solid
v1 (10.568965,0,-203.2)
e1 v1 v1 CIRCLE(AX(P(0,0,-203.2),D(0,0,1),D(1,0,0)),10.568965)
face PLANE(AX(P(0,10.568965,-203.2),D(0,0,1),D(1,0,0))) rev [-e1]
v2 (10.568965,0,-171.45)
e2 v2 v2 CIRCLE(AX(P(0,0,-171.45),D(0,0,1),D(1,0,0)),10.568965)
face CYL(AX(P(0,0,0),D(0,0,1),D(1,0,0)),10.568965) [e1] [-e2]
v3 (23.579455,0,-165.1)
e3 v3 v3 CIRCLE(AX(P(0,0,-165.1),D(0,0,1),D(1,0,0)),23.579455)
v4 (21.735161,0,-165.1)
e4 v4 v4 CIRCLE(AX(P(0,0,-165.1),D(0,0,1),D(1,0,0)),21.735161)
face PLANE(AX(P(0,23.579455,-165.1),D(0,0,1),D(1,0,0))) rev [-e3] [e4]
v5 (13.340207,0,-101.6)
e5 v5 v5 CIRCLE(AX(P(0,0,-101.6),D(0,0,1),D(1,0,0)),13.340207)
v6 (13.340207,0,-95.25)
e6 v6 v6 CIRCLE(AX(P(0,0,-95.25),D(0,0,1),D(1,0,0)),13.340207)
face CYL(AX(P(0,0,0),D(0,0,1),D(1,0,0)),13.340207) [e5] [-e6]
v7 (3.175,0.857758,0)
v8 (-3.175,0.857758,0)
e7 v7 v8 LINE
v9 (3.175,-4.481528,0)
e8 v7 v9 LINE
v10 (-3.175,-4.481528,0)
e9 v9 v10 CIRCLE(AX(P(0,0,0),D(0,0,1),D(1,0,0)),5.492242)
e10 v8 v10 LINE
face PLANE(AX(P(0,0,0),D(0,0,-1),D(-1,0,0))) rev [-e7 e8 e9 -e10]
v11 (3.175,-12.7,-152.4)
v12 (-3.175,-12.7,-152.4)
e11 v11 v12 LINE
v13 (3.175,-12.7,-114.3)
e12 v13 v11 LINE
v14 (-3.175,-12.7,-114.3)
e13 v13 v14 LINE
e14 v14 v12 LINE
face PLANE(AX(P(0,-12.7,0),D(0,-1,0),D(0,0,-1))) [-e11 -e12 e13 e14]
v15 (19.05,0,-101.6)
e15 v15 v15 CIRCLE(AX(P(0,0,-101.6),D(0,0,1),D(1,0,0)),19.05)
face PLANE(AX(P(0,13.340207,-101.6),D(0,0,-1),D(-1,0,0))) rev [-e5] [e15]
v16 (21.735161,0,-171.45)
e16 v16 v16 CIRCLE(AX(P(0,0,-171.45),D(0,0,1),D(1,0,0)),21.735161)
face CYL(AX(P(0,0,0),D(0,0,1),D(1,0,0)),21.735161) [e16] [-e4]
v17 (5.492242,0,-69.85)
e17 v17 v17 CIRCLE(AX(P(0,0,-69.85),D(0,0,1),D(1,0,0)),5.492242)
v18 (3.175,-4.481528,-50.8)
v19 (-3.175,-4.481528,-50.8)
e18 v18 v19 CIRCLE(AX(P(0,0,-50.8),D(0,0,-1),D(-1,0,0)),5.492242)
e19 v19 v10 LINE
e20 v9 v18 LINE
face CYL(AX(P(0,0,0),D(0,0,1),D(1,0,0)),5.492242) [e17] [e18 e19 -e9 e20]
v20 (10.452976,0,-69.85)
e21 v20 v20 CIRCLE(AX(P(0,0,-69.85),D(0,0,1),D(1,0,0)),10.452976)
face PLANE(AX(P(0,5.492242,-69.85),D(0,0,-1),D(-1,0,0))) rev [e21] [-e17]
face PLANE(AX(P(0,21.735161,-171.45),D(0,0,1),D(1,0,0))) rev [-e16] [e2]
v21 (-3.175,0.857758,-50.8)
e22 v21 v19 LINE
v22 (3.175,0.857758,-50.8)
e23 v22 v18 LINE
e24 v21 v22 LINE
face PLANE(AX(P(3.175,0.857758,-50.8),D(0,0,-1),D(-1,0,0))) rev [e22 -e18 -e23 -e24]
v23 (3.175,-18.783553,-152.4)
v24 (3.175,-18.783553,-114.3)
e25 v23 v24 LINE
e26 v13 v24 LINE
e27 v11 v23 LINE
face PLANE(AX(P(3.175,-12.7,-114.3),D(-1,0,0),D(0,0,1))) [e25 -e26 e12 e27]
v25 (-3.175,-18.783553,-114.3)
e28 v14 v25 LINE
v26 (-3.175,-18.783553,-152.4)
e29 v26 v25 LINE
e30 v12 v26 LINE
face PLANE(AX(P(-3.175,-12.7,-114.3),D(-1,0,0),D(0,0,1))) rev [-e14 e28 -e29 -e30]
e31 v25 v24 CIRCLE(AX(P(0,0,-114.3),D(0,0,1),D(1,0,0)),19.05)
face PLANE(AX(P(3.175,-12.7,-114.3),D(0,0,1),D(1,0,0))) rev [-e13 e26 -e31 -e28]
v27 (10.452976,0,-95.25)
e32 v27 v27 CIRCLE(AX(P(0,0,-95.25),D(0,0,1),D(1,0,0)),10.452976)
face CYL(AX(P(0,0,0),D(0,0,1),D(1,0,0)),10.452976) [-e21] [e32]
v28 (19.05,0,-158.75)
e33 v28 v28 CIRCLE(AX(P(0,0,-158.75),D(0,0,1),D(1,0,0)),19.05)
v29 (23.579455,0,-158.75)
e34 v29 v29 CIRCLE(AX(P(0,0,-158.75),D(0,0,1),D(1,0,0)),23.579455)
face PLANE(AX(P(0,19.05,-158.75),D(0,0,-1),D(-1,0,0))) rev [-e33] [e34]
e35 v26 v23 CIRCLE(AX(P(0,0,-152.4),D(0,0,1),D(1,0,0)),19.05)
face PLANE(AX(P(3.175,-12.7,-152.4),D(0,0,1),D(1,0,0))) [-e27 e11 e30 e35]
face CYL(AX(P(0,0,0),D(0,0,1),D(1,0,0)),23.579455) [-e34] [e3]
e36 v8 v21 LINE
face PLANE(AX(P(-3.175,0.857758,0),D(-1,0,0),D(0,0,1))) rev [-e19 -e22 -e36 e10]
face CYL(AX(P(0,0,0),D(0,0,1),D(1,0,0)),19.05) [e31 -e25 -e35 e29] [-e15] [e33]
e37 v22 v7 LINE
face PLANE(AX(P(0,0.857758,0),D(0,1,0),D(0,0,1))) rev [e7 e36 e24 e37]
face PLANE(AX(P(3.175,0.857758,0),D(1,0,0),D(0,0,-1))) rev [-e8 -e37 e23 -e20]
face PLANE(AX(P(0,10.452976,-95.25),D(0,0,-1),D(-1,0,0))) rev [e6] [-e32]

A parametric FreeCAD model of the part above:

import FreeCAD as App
import Part
import Sketcher
Q = App.Units.Quantity

doc = App.newDocument("Part")
body = doc.addObject("PartDesign::Body", "Body")

sketch1 = body.newObject("Sketcher::SketchObject", "Sketch")
sketch1.AttachmentSupport = (doc.getObject("YZ_Plane"), [""])
sketch1.MapMode = "FlatFace"
sketch1.addGeometry(Part.LineSegment(App.Vector(5.5, 0, 0), App.Vector(0, 0, 0)), False)
sketch1.addGeometry(Part.LineSegment(App.Vector(0, 0, 0), App.Vector(0, -203.2, 0)), False)
sketch1.addGeometry(Part.LineSegment(App.Vector(0, -203.2, 0), App.Vector(10.6, -203.2, 0)), False)
sketch1.addGeometry(Part.LineSegment(App.Vector(10.6, -203.2, 0), App.Vector(10.6, -171.4, 0)), False)
sketch1.addGeometry(Part.LineSegment(App.Vector(10.6, -171.4, 0), App.Vector(21.7, -171.4, 0)), False)
sketch1.addGeometry(Part.LineSegment(App.Vector(21.7, -171.4, 0), App.Vector(21.7, -165.1, 0)), False)
sketch1.addGeometry(Part.LineSegment(App.Vector(21.7, -165.1, 0), App.Vector(23.6, -165.1, 0)), False)
sketch1.addGeometry(Part.LineSegment(App.Vector(23.6, -165.1, 0), App.Vector(23.6, -158.8, 0)), False)
sketch1.addGeometry(Part.LineSegment(App.Vector(23.6, -158.8, 0), App.Vector(19.1, -158.8, 0)), False)
sketch1.addGeometry(Part.LineSegment(App.Vector(19.1, -158.8, 0), App.Vector(19.1, -101.6, 0)), False)
sketch1.addGeometry(Part.LineSegment(App.Vector(19.1, -101.6, 0), App.Vector(13.3, -101.6, 0)), False)
sketch1.addGeometry(Part.LineSegment(App.Vector(13.3, -101.6, 0), App.Vector(13.3, -95.2, 0)), False)
sketch1.addGeometry(Part.LineSegment(App.Vector(13.3, -95.2, 0), App.Vector(10.5, -95.2, 0)), False)
sketch1.addGeometry(Part.LineSegment(App.Vector(10.5, -95.2, 0), App.Vector(10.5, -69.8, 0)), False)
sketch1.addGeometry(Part.LineSegment(App.Vector(10.5, -69.8, 0), App.Vector(5.5, -69.8, 0)), False)
sketch1.addGeometry(Part.LineSegment(App.Vector(5.5, -69.8, 0), App.Vector(5.5, 0, 0)), False)
sketch1.addConstraint(Sketcher.Constraint("Coincident", 0, 2, 1, 1))
sketch1.addConstraint(Sketcher.Constraint("Coincident", 1, 2, 2, 1))
sketch1.addConstraint(Sketcher.Constraint("Coincident", 2, 2, 3, 1))
sketch1.addConstraint(Sketcher.Constraint("Coincident", 3, 2, 4, 1))
sketch1.addConstraint(Sketcher.Constraint("Coincident", 4, 2, 5, 1))
sketch1.addConstraint(Sketcher.Constraint("Coincident", 5, 2, 6, 1))
sketch1.addConstraint(Sketcher.Constraint("Coincident", 6, 2, 7, 1))
sketch1.addConstraint(Sketcher.Constraint("Coincident", 7, 2, 8, 1))
sketch1.addConstraint(Sketcher.Constraint("Coincident", 8, 2, 9, 1))
sketch1.addConstraint(Sketcher.Constraint("Coincident", 9, 2, 10, 1))
sketch1.addConstraint(Sketcher.Constraint("Coincident", 10, 2, 11, 1))
sketch1.addConstraint(Sketcher.Constraint("Coincident", 11, 2, 12, 1))
sketch1.addConstraint(Sketcher.Constraint("Coincident", 12, 2, 13, 1))
sketch1.addConstraint(Sketcher.Constraint("Coincident", 13, 2, 14, 1))
sketch1.addConstraint(Sketcher.Constraint("Coincident", 14, 2, 15, 1))
sketch1.addConstraint(Sketcher.Constraint("Coincident", 15, 2, 0, 1))
sketch1.addConstraint(Sketcher.Constraint("Horizontal", 0))
sketch1.addConstraint(Sketcher.Constraint("Vertical", 1))
sketch1.addConstraint(Sketcher.Constraint("Horizontal", 2))
sketch1.addConstraint(Sketcher.Constraint("Vertical", 3))
sketch1.addConstraint(Sketcher.Constraint("Horizontal", 4))
sketch1.addConstraint(Sketcher.Constraint("Vertical", 5))
sketch1.addConstraint(Sketcher.Constraint("Horizontal", 6))
sketch1.addConstraint(Sketcher.Constraint("Vertical", 7))
sketch1.addConstraint(Sketcher.Constraint("Horizontal", 8))
sketch1.addConstraint(Sketcher.Constraint("Vertical", 9))
sketch1.addConstraint(Sketcher.Constraint("Horizontal", 10))
sketch1.addConstraint(Sketcher.Constraint("Vertical", 11))
sketch1.addConstraint(Sketcher.Constraint("Horizontal", 12))
sketch1.addConstraint(Sketcher.Constraint("Vertical", 13))
sketch1.addConstraint(Sketcher.Constraint("Horizontal", 14))
sketch1.addConstraint(Sketcher.Constraint("Vertical", 15))
sketch1.addConstraint(Sketcher.Constraint("Coincident", 0, 2, -1, 1))
sketch1.addConstraint(Sketcher.Constraint("Equal", 5, 7))
sketch1.addConstraint(Sketcher.Constraint("Equal", 7, 11))
sketch1.addConstraint(Sketcher.Constraint("DistanceY", 1, 2, 1, 1, Q("8 in")))
sketch1.addConstraint(Sketcher.Constraint("DistanceY", 13, 1, 13, 2, Q("1 in")))
sketch1.addConstraint(Sketcher.Constraint("DistanceY", 9, 2, -1, 1, Q("4 in")))
sketch1.addConstraint(Sketcher.Constraint("DistanceY", 3, 1, 3, 2, Q("1.25 in")))
sketch1.addConstraint(Sketcher.Constraint("DistanceY", 5, 1, 5, 2, Q("0.25 in")))
sketch1.addConstraint(Sketcher.Constraint("DistanceX", -1, 1, 8, 2, Q("0.75 in")))
sketch1.addConstraint(Sketcher.Constraint("DistanceX", 12, 2, 12, 1, 2.887231))
sketch1.addConstraint(Sketcher.Constraint("DistanceX", 0, 2, 0, 1, 5.492242))
sketch1.addConstraint(Sketcher.Constraint("DistanceX", 2, 1, 2, 2, 10.568965))
sketch1.addConstraint(Sketcher.Constraint("DistanceX", 4, 1, 4, 2, 11.166196))
sketch1.addConstraint(Sketcher.Constraint("DistanceX", 6, 1, 6, 2, 1.844294))
sketch1.addConstraint(Sketcher.Constraint("DistanceX", 10, 2, 10, 1, 5.709793))
revolution = body.newObject("PartDesign::Revolution", "Revolution")
revolution.Profile = sketch1
revolution.ReferenceAxis = (sketch1, ["V_Axis"])
revolution.Angle = 360

sketch2 = body.newObject("Sketcher::SketchObject", "Sketch001")
sketch2.AttachmentSupport = (doc.getObject("XZ_Plane"), [""])
sketch2.MapMode = "FlatFace"
sketch2.AttachmentOffset = App.Placement(App.Vector(0, 0, 5.492242), App.Rotation())
sketch2.addGeometry(Part.LineSegment(App.Vector(3, -51, 0), App.Vector(3, 0, 0)), False)
sketch2.addGeometry(Part.LineSegment(App.Vector(3, 0, 0), App.Vector(-3, 0, 0)), False)
sketch2.addGeometry(Part.LineSegment(App.Vector(-3, 0, 0), App.Vector(-3, -51, 0)), False)
sketch2.addGeometry(Part.LineSegment(App.Vector(-3, -51, 0), App.Vector(3, -51, 0)), False)
sketch2.addConstraint(Sketcher.Constraint("Coincident", 0, 2, 1, 1))
sketch2.addConstraint(Sketcher.Constraint("Coincident", 1, 2, 2, 1))
sketch2.addConstraint(Sketcher.Constraint("Coincident", 2, 2, 3, 1))
sketch2.addConstraint(Sketcher.Constraint("Coincident", 3, 2, 0, 1))
sketch2.addConstraint(Sketcher.Constraint("Vertical", 0))
sketch2.addConstraint(Sketcher.Constraint("Horizontal", 1))
sketch2.addConstraint(Sketcher.Constraint("Vertical", 2))
sketch2.addConstraint(Sketcher.Constraint("Horizontal", 3))
sketch2.addConstraint(Sketcher.Constraint("Symmetric", 0, 2, 1, 2, -1, 1))
sketch2.addConstraint(Sketcher.Constraint("DistanceY", 0, 1, 0, 2, Q("2 in")))
sketch2.addConstraint(Sketcher.Constraint("DistanceX", 1, 2, 1, 1, Q("0.25 in")))
pocket1 = body.newObject("PartDesign::Pocket", "Pocket")
pocket1.Profile = sketch2
pocket1.Length = Q("0.25 in")

sketch3 = body.newObject("Sketcher::SketchObject", "Sketch002")
sketch3.AttachmentSupport = (doc.getObject("XZ_Plane"), [""])
sketch3.MapMode = "FlatFace"
sketch3.AttachmentOffset = App.Placement(App.Vector(0, 0, 0.75 * 25.4), App.Rotation())
sketch3.addGeometry(Part.LineSegment(App.Vector(3, -152, 0), App.Vector(3, -114, 0)), False)
sketch3.addGeometry(Part.LineSegment(App.Vector(3, -114, 0), App.Vector(-3, -114, 0)), False)
sketch3.addGeometry(Part.LineSegment(App.Vector(-3, -114, 0), App.Vector(-3, -152, 0)), False)
sketch3.addGeometry(Part.LineSegment(App.Vector(-3, -152, 0), App.Vector(3, -152, 0)), False)
sketch3.addConstraint(Sketcher.Constraint("Coincident", 0, 2, 1, 1))
sketch3.addConstraint(Sketcher.Constraint("Coincident", 1, 2, 2, 1))
sketch3.addConstraint(Sketcher.Constraint("Coincident", 2, 2, 3, 1))
sketch3.addConstraint(Sketcher.Constraint("Coincident", 3, 2, 0, 1))
sketch3.addConstraint(Sketcher.Constraint("Vertical", 0))
sketch3.addConstraint(Sketcher.Constraint("Horizontal", 1))
sketch3.addConstraint(Sketcher.Constraint("Vertical", 2))
sketch3.addConstraint(Sketcher.Constraint("Horizontal", 3))
sketch3.addConstraint(Sketcher.Constraint("DistanceY", 0, 1, 0, 2, Q("1.5 in")))
sketch3.addConstraint(Sketcher.Constraint("DistanceY", 2, 2, -1, 1, Q("6 in")))
sketch3.addConstraint(Sketcher.Constraint("DistanceX", 1, 2, 1, 1, Q("0.25 in")))
sketch3.addConstraint(Sketcher.Constraint("DistanceX", -1, 1, 0, 2, Q("0.125 in")))
pocket2 = body.newObject("PartDesign::Pocket", "Pocket001")
pocket2.Profile = sketch3
pocket2.Length = Q("0.25 in")

doc.recompute()
